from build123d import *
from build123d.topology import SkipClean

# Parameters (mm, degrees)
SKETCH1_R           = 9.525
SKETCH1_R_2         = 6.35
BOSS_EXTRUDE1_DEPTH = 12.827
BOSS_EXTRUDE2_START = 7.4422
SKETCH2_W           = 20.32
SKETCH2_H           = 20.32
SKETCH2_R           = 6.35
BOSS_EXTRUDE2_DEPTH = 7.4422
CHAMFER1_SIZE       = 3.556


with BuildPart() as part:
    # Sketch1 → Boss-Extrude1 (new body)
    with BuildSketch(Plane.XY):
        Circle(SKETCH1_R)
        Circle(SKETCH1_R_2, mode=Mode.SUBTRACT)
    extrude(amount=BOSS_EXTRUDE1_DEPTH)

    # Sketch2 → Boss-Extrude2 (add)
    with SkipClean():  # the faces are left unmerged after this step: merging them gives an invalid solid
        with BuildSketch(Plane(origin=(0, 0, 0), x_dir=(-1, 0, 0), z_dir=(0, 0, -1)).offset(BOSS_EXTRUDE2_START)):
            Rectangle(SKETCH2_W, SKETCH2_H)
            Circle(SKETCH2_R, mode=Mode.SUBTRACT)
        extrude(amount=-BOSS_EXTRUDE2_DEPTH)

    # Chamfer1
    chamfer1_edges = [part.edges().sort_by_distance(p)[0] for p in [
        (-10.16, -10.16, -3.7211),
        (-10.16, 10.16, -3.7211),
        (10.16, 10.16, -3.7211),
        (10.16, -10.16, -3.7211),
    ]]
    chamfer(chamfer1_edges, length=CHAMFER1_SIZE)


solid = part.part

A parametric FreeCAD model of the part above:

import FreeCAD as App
import Part
import Sketcher
from FreeCAD import Vector
Q = App.Units.Quantity


def edges_at(feature, points):
    """Names of the edges that pass closest to the given points."""
    edges = feature.Shape.Edges
    near = lambda p: min(range(len(edges)), key=lambda i: edges[i].distToShape(Part.Vertex(*p))[0])
    return sorted({f"Edge{near(p) + 1}" for p in points})

doc = App.newDocument("Part")
params = doc.addObject("Spreadsheet::Sheet", "Params")
for row, (alias, value) in enumerate([
    ("sketch1_diameter", "0.5 in"),
    ("sketch1_diameter2", "0.75 in"),
    ("pad1_length", "0.505 in"),
    ("sketch2_diameter", "0.5 in"),
    ("sketch2_width", "0.8 in"),
    ("pad2_length", "0.293 in"),
    ("chamfer_size", "0.14 in"),
], start=1):
    params.set(f"A{row}", alias)
    params.set(f"B{row}", "=" + value)
    params.setAlias(f"B{row}", alias)

body = doc.addObject("PartDesign::Body", "Body")

sketch1 = doc.addObject("Sketcher::SketchObject", "Sketch")
body.addObject(sketch1)
sketch1.AttachmentSupport = (doc.XY_Plane, [""])
sketch1.MapMode = "FlatFace"
sketch1.addGeometry(Part.Circle(Vector(0, 0, 0), Vector(0, 0, 1), 10), False)
sketch1.addGeometry(Part.Circle(Vector(0, 0, 0), Vector(0, 0, 1), 6), False)
sketch1.addConstraint(Sketcher.Constraint("Coincident", 0, 3, -1, 1))
sketch1.addConstraint(Sketcher.Constraint("Coincident", 1, 3, -1, 1))
sketch1.addConstraint(Sketcher.Constraint("Diameter", 1, Q("0.5 in")))
sketch1.addConstraint(Sketcher.Constraint("Diameter", 0, Q("0.75 in")))
sketch1.setExpression("Constraints[2]", "Params.sketch1_diameter")
sketch1.setExpression("Constraints[3]", "Params.sketch1_diameter2")
pad1 = doc.addObject("PartDesign::Pad", "Pad")
body.addObject(pad1)
pad1.Profile = sketch1
pad1.setExpression("Length", "Params.pad1_length")

sketch2 = doc.addObject("Sketcher::SketchObject", "Sketch001")
body.addObject(sketch2)
sketch2.AttachmentSupport = (doc.XY_Plane, [""])
sketch2.MapMode = "FlatFace"
sketch2.AttachmentOffset = App.Placement(Vector(0, 0, -0.293 * 25.4), App.Rotation())
sketch2.addGeometry(Part.LineSegment(Vector(10, 10, 0), Vector(10, -10, 0)), False)
sketch2.addGeometry(Part.LineSegment(Vector(10, -10, 0), Vector(-10, -10, 0)), False)
sketch2.addGeometry(Part.LineSegment(Vector(-10, -10, 0), Vector(-10, 10, 0)), False)
sketch2.addGeometry(Part.LineSegment(Vector(-10, 10, 0), Vector(10, 10, 0)), False)
sketch2.addGeometry(Part.Circle(Vector(0, 0, 0), Vector(0, 0, 1), 6), False)
sketch2.addConstraint(Sketcher.Constraint("Coincident", 0, 2, 1, 1))
sketch2.addConstraint(Sketcher.Constraint("Coincident", 1, 2, 2, 1))
sketch2.addConstraint(Sketcher.Constraint("Coincident", 2, 2, 3, 1))
sketch2.addConstraint(Sketcher.Constraint("Coincident", 3, 2, 0, 1))
sketch2.addConstraint(Sketcher.Constraint("Vertical", 0))
sketch2.addConstraint(Sketcher.Constraint("Horizontal", 1))
sketch2.addConstraint(Sketcher.Constraint("Vertical", 2))
sketch2.addConstraint(Sketcher.Constraint("Horizontal", 3))
sketch2.addConstraint(Sketcher.Constraint("Coincident", 4, 3, -1, 1))
sketch2.addConstraint(Sketcher.Constraint("Symmetric", 0, 2, 2, 2, -1, 1))
sketch2.addConstraint(Sketcher.Constraint("Equal", 3, 0))
sketch2.addConstraint(Sketcher.Constraint("Diameter", 4, Q("0.5 in")))
sketch2.addConstraint(Sketcher.Constraint("DistanceX", 1, 2, 1, 1, Q("0.8 in")))
sketch2.setExpression("Constraints[11]", "Params.sketch2_diameter")
sketch2.setExpression("Constraints[12]", "Params.sketch2_width")
pad2 = doc.addObject("PartDesign::Pad", "Pad001")
body.addObject(pad2)
pad2.Profile = sketch2
pad2.setExpression("Length", "Params.pad2_length")
doc.recompute()

chamfer = doc.addObject("PartDesign::Chamfer", "Chamfer")
body.addObject(chamfer)
chamfer.Base = (pad2, edges_at(pad2, [
    (-10.16, -10.16, -3.721),
    (-10.16, 10.16, -3.721),
    (10.16, 10.16, -3.721),
    (10.16, -10.16, -3.721),
]))
chamfer.setExpression("Size", "Params.chamfer_size")

doc.recompute()
